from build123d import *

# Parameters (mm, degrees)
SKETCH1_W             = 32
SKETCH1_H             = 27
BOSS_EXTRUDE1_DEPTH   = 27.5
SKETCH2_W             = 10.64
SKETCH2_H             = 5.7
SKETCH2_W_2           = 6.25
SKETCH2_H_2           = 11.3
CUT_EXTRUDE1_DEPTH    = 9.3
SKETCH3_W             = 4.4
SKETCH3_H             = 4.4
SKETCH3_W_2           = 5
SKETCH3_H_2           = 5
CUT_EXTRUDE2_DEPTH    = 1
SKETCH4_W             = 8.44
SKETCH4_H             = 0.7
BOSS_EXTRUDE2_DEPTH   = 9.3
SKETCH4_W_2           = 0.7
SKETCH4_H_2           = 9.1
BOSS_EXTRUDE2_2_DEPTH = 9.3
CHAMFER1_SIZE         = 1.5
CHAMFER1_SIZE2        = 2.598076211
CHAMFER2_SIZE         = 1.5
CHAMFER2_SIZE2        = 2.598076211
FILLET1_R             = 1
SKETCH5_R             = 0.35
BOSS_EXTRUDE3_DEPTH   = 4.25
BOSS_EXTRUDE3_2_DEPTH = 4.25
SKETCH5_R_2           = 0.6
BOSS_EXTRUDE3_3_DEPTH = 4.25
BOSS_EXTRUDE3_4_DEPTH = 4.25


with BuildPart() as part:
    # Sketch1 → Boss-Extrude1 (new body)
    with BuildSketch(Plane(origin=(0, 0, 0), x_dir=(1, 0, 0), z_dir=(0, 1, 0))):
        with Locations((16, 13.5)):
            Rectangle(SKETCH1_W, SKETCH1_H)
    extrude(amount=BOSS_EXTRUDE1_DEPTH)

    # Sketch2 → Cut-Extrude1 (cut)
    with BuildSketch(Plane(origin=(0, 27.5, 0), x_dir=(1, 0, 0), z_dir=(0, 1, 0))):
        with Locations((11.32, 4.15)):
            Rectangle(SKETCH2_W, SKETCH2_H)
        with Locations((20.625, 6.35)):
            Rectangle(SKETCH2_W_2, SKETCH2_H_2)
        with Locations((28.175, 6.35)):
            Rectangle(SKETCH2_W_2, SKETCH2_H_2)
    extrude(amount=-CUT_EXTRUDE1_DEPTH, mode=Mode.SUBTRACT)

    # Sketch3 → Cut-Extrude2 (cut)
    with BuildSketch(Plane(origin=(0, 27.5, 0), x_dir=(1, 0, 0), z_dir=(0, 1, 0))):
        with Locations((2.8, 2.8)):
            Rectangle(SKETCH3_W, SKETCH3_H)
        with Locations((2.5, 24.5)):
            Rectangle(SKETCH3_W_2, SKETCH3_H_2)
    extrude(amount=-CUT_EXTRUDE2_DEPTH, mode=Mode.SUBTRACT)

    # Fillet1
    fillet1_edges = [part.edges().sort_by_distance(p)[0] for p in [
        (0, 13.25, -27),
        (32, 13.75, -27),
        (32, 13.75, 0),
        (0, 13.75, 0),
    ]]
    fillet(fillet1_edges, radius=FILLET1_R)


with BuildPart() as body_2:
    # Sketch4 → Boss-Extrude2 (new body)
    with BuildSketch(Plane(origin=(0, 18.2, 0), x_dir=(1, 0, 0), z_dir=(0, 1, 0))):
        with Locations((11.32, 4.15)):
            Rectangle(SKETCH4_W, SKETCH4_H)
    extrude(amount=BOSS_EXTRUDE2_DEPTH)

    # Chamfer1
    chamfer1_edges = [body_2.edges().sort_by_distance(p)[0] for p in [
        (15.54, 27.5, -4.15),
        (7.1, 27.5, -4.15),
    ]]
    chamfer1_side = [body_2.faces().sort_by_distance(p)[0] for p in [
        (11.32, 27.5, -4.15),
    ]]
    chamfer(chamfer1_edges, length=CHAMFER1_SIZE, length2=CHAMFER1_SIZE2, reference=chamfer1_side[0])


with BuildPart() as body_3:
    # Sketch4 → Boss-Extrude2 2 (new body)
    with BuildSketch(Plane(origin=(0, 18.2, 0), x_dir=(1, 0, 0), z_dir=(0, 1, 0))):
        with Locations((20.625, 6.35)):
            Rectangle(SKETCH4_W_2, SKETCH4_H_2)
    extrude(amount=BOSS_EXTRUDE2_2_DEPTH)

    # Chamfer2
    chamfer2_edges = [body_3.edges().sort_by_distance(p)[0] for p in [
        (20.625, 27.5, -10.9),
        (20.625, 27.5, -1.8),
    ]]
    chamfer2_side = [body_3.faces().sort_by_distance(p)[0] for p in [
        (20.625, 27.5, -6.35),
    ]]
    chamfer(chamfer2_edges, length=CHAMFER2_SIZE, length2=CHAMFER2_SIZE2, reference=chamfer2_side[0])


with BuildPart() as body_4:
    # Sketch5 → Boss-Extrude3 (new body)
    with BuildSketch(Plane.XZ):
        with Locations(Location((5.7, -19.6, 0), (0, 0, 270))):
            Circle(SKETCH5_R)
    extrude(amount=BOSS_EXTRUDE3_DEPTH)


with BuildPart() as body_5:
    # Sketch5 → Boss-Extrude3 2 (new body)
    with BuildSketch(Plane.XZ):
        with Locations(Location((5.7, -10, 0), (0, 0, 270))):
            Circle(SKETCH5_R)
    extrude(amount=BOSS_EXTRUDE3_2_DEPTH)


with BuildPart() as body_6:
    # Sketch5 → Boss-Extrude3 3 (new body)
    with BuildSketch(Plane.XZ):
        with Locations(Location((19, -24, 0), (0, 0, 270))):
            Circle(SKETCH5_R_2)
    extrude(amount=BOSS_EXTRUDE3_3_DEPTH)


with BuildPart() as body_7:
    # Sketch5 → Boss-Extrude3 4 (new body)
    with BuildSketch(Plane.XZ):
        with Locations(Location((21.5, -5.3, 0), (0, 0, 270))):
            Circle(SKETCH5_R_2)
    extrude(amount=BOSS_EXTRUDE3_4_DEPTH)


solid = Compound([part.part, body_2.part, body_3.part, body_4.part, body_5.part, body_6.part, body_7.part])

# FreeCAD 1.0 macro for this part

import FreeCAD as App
import Part
import Sketcher
from FreeCAD import Vector
Q = App.Units.Quantity


def edges_at(feature, points):
    """Names of the edges that pass closest to the given points."""
    edges = feature.Shape.Edges
    near = lambda p: min(range(len(edges)), key=lambda i: edges[i].distToShape(Part.Vertex(*p))[0])
    return sorted({f"Edge{near(p) + 1}" for p in points})

doc = App.newDocument("Part")
params = doc.addObject("Spreadsheet::Sheet", "Params")
for row, (alias, value) in enumerate([
    ("sketch1_width", "32 mm"),
    ("sketch1_height", "27 mm"),
    ("pad1_length", "27.5 mm"),
    ("sketch2_height", "5.7 mm"),
    ("sketch2_height2", "11.3 mm"),
    ("sketch2_width", "10.64 mm"),
    ("sketch2_width2", "6.25 mm"),
    ("pocket1_length", "9.3 mm"),
    ("sketch3_width", "5 mm"),
    ("sketch3_width2", "4.4 mm"),
    ("pocket2_length", "1 mm"),
    ("fillet_radius", "1 mm"),
    ("sketch4_height", "0.7 mm"),
    ("sketch4_width", "8.44 mm"),
    ("pad2_length", "9.3 mm"),
    ("chamfer_size", "1.5 mm"),
    ("chamfer_size2", "2.598076 mm"),
    ("sketch5_width", "0.7 mm"),
    ("sketch5_height", "9.1 mm"),
    ("pad3_length", "9.3 mm"),
    ("chamfer2_size", "1.5 mm"),
    ("chamfer2_size2", "2.598076 mm"),
    ("sketch6_diameter", "0.7 mm"),
    ("pad4_length", "4.25 mm"),
    ("sketch7_diameter", "0.7 mm"),
    ("pad5_length", "4.25 mm"),
    ("sketch8_diameter", "1.2 mm"),
    ("pad6_length", "4.25 mm"),
    ("sketch9_diameter", "1.2 mm"),
    ("pad7_length", "4.25 mm"),
], start=1):
    params.set(f"A{row}", alias)
    params.set(f"B{row}", "=" + value)
    params.setAlias(f"B{row}", alias)

body = doc.addObject("PartDesign::Body", "Body")

sketch1 = body.newObject("Sketcher::SketchObject", "Sketch")
sketch1.AttachmentSupport = (doc.getObject("XZ_Plane"), [""])
sketch1.MapMode = "FlatFace"
sketch1.addGeometry(Part.LineSegment(Vector(0, -27, 0), Vector(0, 0, 0)), False)
sketch1.addGeometry(Part.LineSegment(Vector(0, 0, 0), Vector(32, 0, 0)), False)
sketch1.addGeometry(Part.LineSegment(Vector(32, 0, 0), Vector(32, -27, 0)), False)
sketch1.addGeometry(Part.LineSegment(Vector(32, -27, 0), Vector(0, -27, 0)), False)
sketch1.addConstraint(Sketcher.Constraint("Coincident", 0, 2, 1, 1))
sketch1.addConstraint(Sketcher.Constraint("Coincident", 1, 2, 2, 1))
sketch1.addConstraint(Sketcher.Constraint("Coincident", 2, 2, 3, 1))
sketch1.addConstraint(Sketcher.Constraint("Coincident", 3, 2, 0, 1))
sketch1.addConstraint(Sketcher.Constraint("Vertical", 0))
sketch1.addConstraint(Sketcher.Constraint("Horizontal", 1))
sketch1.addConstraint(Sketcher.Constraint("Vertical", 2))
sketch1.addConstraint(Sketcher.Constraint("Horizontal", 3))
sketch1.addConstraint(Sketcher.Constraint("Coincident", 0, 2, -1, 1))
sketch1.addConstraint(Sketcher.Constraint("DistanceX", 1, 1, 1, 2, Q("32 mm")))
sketch1.addConstraint(Sketcher.Constraint("DistanceY", 0, 1, 0, 2, Q("27 mm")))
sketch1.setExpression("Constraints[9]", "Params.sketch1_width")
sketch1.setExpression("Constraints[10]", "Params.sketch1_height")
pad1 = body.newObject("PartDesign::Pad", "Pad")
pad1.Profile = sketch1
pad1.setExpression("Length", "Params.pad1_length")
pad1.Reversed = True

sketch2 = body.newObject("Sketcher::SketchObject", "Sketch001")
sketch2.AttachmentSupport = (doc.getObject("XZ_Plane"), [""])
sketch2.MapMode = "FlatFace"
sketch2.AttachmentOffset = App.Placement(Vector(0, 0, -27.5), App.Rotation())
sketch2.addGeometry(Part.LineSegment(Vector(6, -7, 0), Vector(6, -1.3, 0)), False)
sketch2.addGeometry(Part.LineSegment(Vector(6, -1.3, 0), Vector(16.64, -1.3, 0)), False)
sketch2.addGeometry(Part.LineSegment(Vector(16.64, -1.3, 0), Vector(16.64, -7, 0)), False)
sketch2.addGeometry(Part.LineSegment(Vector(16.64, -7, 0), Vector(6, -7, 0)), False)
sketch2.addGeometry(Part.LineSegment(Vector(17.5, -12, 0), Vector(17.5, -0.7, 0)), False)
sketch2.addGeometry(Part.LineSegment(Vector(17.5, -0.7, 0), Vector(23.75, -0.7, 0)), False)
sketch2.addGeometry(Part.LineSegment(Vector(23.75, -0.7, 0), Vector(23.75, -12, 0)), False)
sketch2.addGeometry(Part.LineSegment(Vector(23.75, -12, 0), Vector(17.5, -12, 0)), False)
sketch2.addGeometry(Part.LineSegment(Vector(25.05, -12, 0), Vector(25.05, -0.7, 0)), False)
sketch2.addGeometry(Part.LineSegment(Vector(25.05, -0.7, 0), Vector(31.3, -0.7, 0)), False)
sketch2.addGeometry(Part.LineSegment(Vector(31.3, -0.7, 0), Vector(31.3, -12, 0)), False)
sketch2.addGeometry(Part.LineSegment(Vector(31.3, -12, 0), Vector(25.05, -12, 0)), False)
sketch2.addConstraint(Sketcher.Constraint("Coincident", 0, 2, 1, 1))
sketch2.addConstraint(Sketcher.Constraint("Coincident", 1, 2, 2, 1))
sketch2.addConstraint(Sketcher.Constraint("Coincident", 2, 2, 3, 1))
sketch2.addConstraint(Sketcher.Constraint("Coincident", 3, 2, 0, 1))
sketch2.addConstraint(Sketcher.Constraint("Coincident", 4, 2, 5, 1))
sketch2.addConstraint(Sketcher.Constraint("Coincident", 5, 2, 6, 1))
sketch2.addConstraint(Sketcher.Constraint("Coincident", 6, 2, 7, 1))
sketch2.addConstraint(Sketcher.Constraint("Coincident", 7, 2, 4, 1))
sketch2.addConstraint(Sketcher.Constraint("Coincident", 8, 2, 9, 1))
sketch2.addConstraint(Sketcher.Constraint("Coincident", 9, 2, 10, 1))
sketch2.addConstraint(Sketcher.Constraint("Coincident", 10, 2, 11, 1))
sketch2.addConstraint(Sketcher.Constraint("Coincident", 11, 2, 8, 1))
sketch2.addConstraint(Sketcher.Constraint("Vertical", 0))
sketch2.addConstraint(Sketcher.Constraint("Horizontal", 1))
sketch2.addConstraint(Sketcher.Constraint("Vertical", 2))
sketch2.addConstraint(Sketcher.Constraint("Horizontal", 3))
sketch2.addConstraint(Sketcher.Constraint("Vertical", 4))
sketch2.addConstraint(Sketcher.Constraint("Horizontal", 5))
sketch2.addConstraint(Sketcher.Constraint("Vertical", 6))
sketch2.addConstraint(Sketcher.Constraint("Horizontal", 7))
sketch2.addConstraint(Sketcher.Constraint("Vertical", 8))
sketch2.addConstraint(Sketcher.Constraint("Horizontal", 9))
sketch2.addConstraint(Sketcher.Constraint("Vertical", 10))
sketch2.addConstraint(Sketcher.Constraint("Horizontal", 11))
sketch2.addConstraint(Sketcher.Constraint("Horizontal", 5, 2, 8, 2))
sketch2.addConstraint(Sketcher.Constraint("Horizontal", 7, 2, 10, 2))
sketch2.addConstraint(Sketcher.Constraint("Equal", 7, 9))
sketch2.addConstraint(Sketcher.Constraint("DistanceY", 0, 1, 0, 2, Q("5.7 mm")))
sketch2.addConstraint(Sketcher.Constraint("DistanceY", 4, 1, 4, 2, Q("11.3 mm")))
sketch2.addConstraint(Sketcher.Constraint("DistanceX", -1, 1, 0, 2, Q("6 mm")))
sketch2.addConstraint(Sketcher.Constraint("DistanceY", 2, 2, -1, 1, Q("7 mm")))
sketch2.addConstraint(Sketcher.Constraint("DistanceY", 6, 2, -1, 1, Q("12 mm")))
sketch2.addConstraint(Sketcher.Constraint("DistanceX", 1, 1, 1, 2, Q("10.64 mm")))
sketch2.addConstraint(Sketcher.Constraint("DistanceX", 5, 1, 5, 2, Q("6.25 mm")))
sketch2.addConstraint(Sketcher.Constraint("DistanceX", -1, 1, 4, 2, Q("17.5 mm")))
sketch2.addConstraint(Sketcher.Constraint("DistanceX", -1, 1, 9, 2, Q("31.3 mm")))
sketch2.setExpression("Constraints[27]", "Params.sketch2_height")
sketch2.setExpression("Constraints[28]", "Params.sketch2_height2")
sketch2.setExpression("Constraints[32]", "Params.sketch2_width")
sketch2.setExpression("Constraints[33]", "Params.sketch2_width2")
pocket1 = body.newObject("PartDesign::Pocket", "Pocket")
pocket1.Profile = sketch2
pocket1.setExpression("Length", "Params.pocket1_length")
pocket1.Reversed = True

sketch3 = body.newObject("Sketcher::SketchObject", "Sketch002")
sketch3.AttachmentSupport = (doc.getObject("XZ_Plane"), [""])
sketch3.MapMode = "FlatFace"
sketch3.AttachmentOffset = App.Placement(Vector(0, 0, -27.5), App.Rotation())
sketch3.addGeometry(Part.LineSegment(Vector(0.6, -5, 0), Vector(0.6, -0.6, 0)), False)
sketch3.addGeometry(Part.LineSegment(Vector(0.6, -0.6, 0), Vector(5, -0.6, 0)), False)
sketch3.addGeometry(Part.LineSegment(Vector(5, -0.6, 0), Vector(5, -5, 0)), False)
sketch3.addGeometry(Part.LineSegment(Vector(5, -5, 0), Vector(0.6, -5, 0)), False)
sketch3.addGeometry(Part.LineSegment(Vector(0, -27, 0), Vector(0, -22, 0)), False)
sketch3.addGeometry(Part.LineSegment(Vector(0, -22, 0), Vector(5, -22, 0)), False)
sketch3.addGeometry(Part.LineSegment(Vector(5, -22, 0), Vector(5, -27, 0)), False)
sketch3.addGeometry(Part.LineSegment(Vector(5, -27, 0), Vector(0, -27, 0)), False)
sketch3.addConstraint(Sketcher.Constraint("Coincident", 0, 2, 1, 1))
sketch3.addConstraint(Sketcher.Constraint("Coincident", 1, 2, 2, 1))
sketch3.addConstraint(Sketcher.Constraint("Coincident", 2, 2, 3, 1))
sketch3.addConstraint(Sketcher.Constraint("Coincident", 3, 2, 0, 1))
sketch3.addConstraint(Sketcher.Constraint("Coincident", 4, 2, 5, 1))
sketch3.addConstraint(Sketcher.Constraint("Coincident", 5, 2, 6, 1))
sketch3.addConstraint(Sketcher.Constraint("Coincident", 6, 2, 7, 1))
sketch3.addConstraint(Sketcher.Constraint("Coincident", 7, 2, 4, 1))
sketch3.addConstraint(Sketcher.Constraint("Vertical", 0))
sketch3.addConstraint(Sketcher.Constraint("Horizontal", 1))
sketch3.addConstraint(Sketcher.Constraint("Vertical", 2))
sketch3.addConstraint(Sketcher.Constraint("Horizontal", 3))
sketch3.addConstraint(Sketcher.Constraint("Vertical", 4))
sketch3.addConstraint(Sketcher.Constraint("Horizontal", 5))
sketch3.addConstraint(Sketcher.Constraint("Vertical", 6))
sketch3.addConstraint(Sketcher.Constraint("Horizontal", 7))
sketch3.addConstraint(Sketcher.Constraint("PointOnObject", 4, 2, -2))
sketch3.addConstraint(Sketcher.Constraint("Vertical", 2, 2, 5, 2))
sketch3.addConstraint(Sketcher.Constraint("Equal", 3, 0))
sketch3.addConstraint(Sketcher.Constraint("Equal", 7, 4))
sketch3.addConstraint(Sketcher.Constraint("DistanceX", 5, 1, 5, 2, Q("5 mm")))
sketch3.addConstraint(Sketcher.Constraint("DistanceX", 1, 1, 1, 2, Q("4.4 mm")))
sketch3.addConstraint(Sketcher.Constraint("DistanceY", 2, 2, -1, 1, Q("5 mm")))
sketch3.addConstraint(Sketcher.Constraint("DistanceY", 4, 2, -1, 1, Q("22 mm")))
sketch3.setExpression("Constraints[20]", "Params.sketch3_width")
sketch3.setExpression("Constraints[21]", "Params.sketch3_width2")
pocket2 = body.newObject("PartDesign::Pocket", "Pocket001")
pocket2.Profile = sketch3
pocket2.setExpression("Length", "Params.pocket2_length")
pocket2.Reversed = True
doc.recompute()

fillet = body.newObject("PartDesign::Fillet", "Fillet")
fillet.Base = (pocket2, edges_at(pocket2, [
    (0, 13.25, -27),
    (32, 13.75, -27),
    (32, 13.75, 0),
    (0, 13.75, 0),
]))
fillet.setExpression("Radius", "Params.fillet_radius")
body2 = doc.addObject("PartDesign::Body", "Body001")

sketch4 = body2.newObject("Sketcher::SketchObject", "Sketch003")
sketch4.AttachmentSupport = (doc.getObject("XZ_Plane001"), [""])
sketch4.MapMode = "FlatFace"
sketch4.AttachmentOffset = App.Placement(Vector(0, 0, -18.2), App.Rotation())
sketch4.addGeometry(Part.LineSegment(Vector(7.1, -4.5, 0), Vector(7.1, -3.8, 0)), False)
sketch4.addGeometry(Part.LineSegment(Vector(7.1, -3.8, 0), Vector(15.54, -3.8, 0)), False)
sketch4.addGeometry(Part.LineSegment(Vector(15.54, -3.8, 0), Vector(15.54, -4.5, 0)), False)
sketch4.addGeometry(Part.LineSegment(Vector(15.54, -4.5, 0), Vector(7.1, -4.5, 0)), False)
sketch4.addConstraint(Sketcher.Constraint("Coincident", 0, 2, 1, 1))
sketch4.addConstraint(Sketcher.Constraint("Coincident", 1, 2, 2, 1))
sketch4.addConstraint(Sketcher.Constraint("Coincident", 2, 2, 3, 1))
sketch4.addConstraint(Sketcher.Constraint("Coincident", 3, 2, 0, 1))
sketch4.addConstraint(Sketcher.Constraint("Vertical", 0))
sketch4.addConstraint(Sketcher.Constraint("Horizontal", 1))
sketch4.addConstraint(Sketcher.Constraint("Vertical", 2))
sketch4.addConstraint(Sketcher.Constraint("Horizontal", 3))
sketch4.addConstraint(Sketcher.Constraint("DistanceY", 0, 1, 0, 2, Q("0.7 mm")))
sketch4.addConstraint(Sketcher.Constraint("DistanceX", 1, 1, 1, 2, Q("8.44 mm")))
sketch4.addConstraint(Sketcher.Constraint("DistanceX", -1, 1, 0, 2, Q("7.1 mm")))
sketch4.addConstraint(Sketcher.Constraint("DistanceY", 0, 2, -1, 1, Q("3.8 mm")))
sketch4.setExpression("Constraints[8]", "Params.sketch4_height")
sketch4.setExpression("Constraints[9]", "Params.sketch4_width")
pad2 = body2.newObject("PartDesign::Pad", "Pad001")
pad2.Profile = sketch4
pad2.setExpression("Length", "Params.pad2_length")
pad2.Reversed = True
doc.recompute()

chamfer = body2.newObject("PartDesign::Chamfer", "Chamfer")
chamfer.Base = (pad2, edges_at(pad2, [(15.54, 27.5, -4.15), (7.1, 27.5, -4.15)]))
chamfer.ChamferType = "Two distances"
chamfer.setExpression("Size", "Params.chamfer_size")
chamfer.setExpression("Size2", "Params.chamfer_size2")
chamfer.FlipDirection = True
body3 = doc.addObject("PartDesign::Body", "Body002")

sketch5 = body3.newObject("Sketcher::SketchObject", "Sketch004")
sketch5.AttachmentSupport = (doc.getObject("XZ_Plane002"), [""])
sketch5.MapMode = "FlatFace"
sketch5.AttachmentOffset = App.Placement(Vector(0, 0, -18.2), App.Rotation())
sketch5.addGeometry(Part.LineSegment(Vector(20.275, -10.9, 0), Vector(20.275, -1.8, 0)), False)
sketch5.addGeometry(Part.LineSegment(Vector(20.275, -1.8, 0), Vector(20.975, -1.8, 0)), False)
sketch5.addGeometry(Part.LineSegment(Vector(20.975, -1.8, 0), Vector(20.975, -10.9, 0)), False)
sketch5.addGeometry(Part.LineSegment(Vector(20.975, -10.9, 0), Vector(20.275, -10.9, 0)), False)
sketch5.addConstraint(Sketcher.Constraint("Coincident", 0, 2, 1, 1))
sketch5.addConstraint(Sketcher.Constraint("Coincident", 1, 2, 2, 1))
sketch5.addConstraint(Sketcher.Constraint("Coincident", 2, 2, 3, 1))
sketch5.addConstraint(Sketcher.Constraint("Coincident", 3, 2, 0, 1))
sketch5.addConstraint(Sketcher.Constraint("Vertical", 0))
sketch5.addConstraint(Sketcher.Constraint("Horizontal", 1))
sketch5.addConstraint(Sketcher.Constraint("Vertical", 2))
sketch5.addConstraint(Sketcher.Constraint("Horizontal", 3))
sketch5.addConstraint(Sketcher.Constraint("DistanceX", 1, 1, 1, 2, Q("0.7 mm")))
sketch5.addConstraint(Sketcher.Constraint("DistanceY", 0, 1, 0, 2, Q("9.1 mm")))
sketch5.addConstraint(Sketcher.Constraint("DistanceY", 0, 2, -1, 1, Q("1.8 mm")))
sketch5.addConstraint(Sketcher.Constraint("DistanceX", -1, 1, 0, 2, Q("20.275 mm")))
sketch5.setExpression("Constraints[8]", "Params.sketch5_width")
sketch5.setExpression("Constraints[9]", "Params.sketch5_height")
pad3 = body3.newObject("PartDesign::Pad", "Pad002")
pad3.Profile = sketch5
pad3.setExpression("Length", "Params.pad3_length")
pad3.Reversed = True
doc.recompute()

chamfer2 = body3.newObject("PartDesign::Chamfer", "Chamfer001")
chamfer2.Base = (pad3, edges_at(pad3, [(20.625, 27.5, -10.9), (20.625, 27.5, -1.8)]))
chamfer2.ChamferType = "Two distances"
chamfer2.setExpression("Size", "Params.chamfer2_size")
chamfer2.setExpression("Size2", "Params.chamfer2_size2")
chamfer2.FlipDirection = True
body4 = doc.addObject("PartDesign::Body", "Body003")

sketch6 = body4.newObject("Sketcher::SketchObject", "Sketch005")
sketch6.AttachmentSupport = (doc.getObject("XZ_Plane003"), [""])
sketch6.MapMode = "FlatFace"
sketch6.addGeometry(Part.Circle(Vector(5.7, -19.6, 0), Vector(0, 0, 1), 0.35), False)
sketch6.addConstraint(Sketcher.Constraint("Diameter", 0, Q("0.7 mm")))
sketch6.addConstraint(Sketcher.Constraint("DistanceX", -1, 1, 0, 3, Q("5.7 mm")))
sketch6.addConstraint(Sketcher.Constraint("DistanceY", 0, 3, -1, 1, Q("19.6 mm")))
sketch6.setExpression("Constraints[0]", "Params.sketch6_diameter")
pad4 = body4.newObject("PartDesign::Pad", "Pad003")
pad4.Profile = sketch6
pad4.setExpression("Length", "Params.pad4_length")
body5 = doc.addObject("PartDesign::Body", "Body004")

sketch7 = body5.newObject("Sketcher::SketchObject", "Sketch006")
sketch7.AttachmentSupport = (doc.getObject("XZ_Plane004"), [""])
sketch7.MapMode = "FlatFace"
sketch7.addGeometry(Part.Circle(Vector(5.7, -10, 0), Vector(0, 0, 1), 0.35), False)
sketch7.addConstraint(Sketcher.Constraint("Diameter", 0, Q("0.7 mm")))
sketch7.addConstraint(Sketcher.Constraint("DistanceY", 0, 3, -1, 1, Q("10 mm")))
sketch7.addConstraint(Sketcher.Constraint("DistanceX", -1, 1, 0, 3, Q("5.7 mm")))
sketch7.setExpression("Constraints[0]", "Params.sketch7_diameter")
pad5 = body5.newObject("PartDesign::Pad", "Pad004")
pad5.Profile = sketch7
pad5.setExpression("Length", "Params.pad5_length")
body6 = doc.addObject("PartDesign::Body", "Body005")

sketch8 = body6.newObject("Sketcher::SketchObject", "Sketch007")
sketch8.AttachmentSupport = (doc.getObject("XZ_Plane005"), [""])
sketch8.MapMode = "FlatFace"
sketch8.addGeometry(Part.Circle(Vector(19, -24, 0), Vector(0, 0, 1), 0.6), False)
sketch8.addConstraint(Sketcher.Constraint("Diameter", 0, Q("1.2 mm")))
sketch8.addConstraint(Sketcher.Constraint("DistanceX", -1, 1, 0, 3, Q("19 mm")))
sketch8.addConstraint(Sketcher.Constraint("DistanceY", 0, 3, -1, 1, Q("24 mm")))
sketch8.setExpression("Constraints[0]", "Params.sketch8_diameter")
pad6 = body6.newObject("PartDesign::Pad", "Pad005")
pad6.Profile = sketch8
pad6.setExpression("Length", "Params.pad6_length")
body7 = doc.addObject("PartDesign::Body", "Body006")

sketch9 = body7.newObject("Sketcher::SketchObject", "Sketch008")
sketch9.AttachmentSupport = (doc.getObject("XZ_Plane006"), [""])
sketch9.MapMode = "FlatFace"
sketch9.addGeometry(Part.Circle(Vector(21.5, -5.3, 0), Vector(0, 0, 1), 0.6), False)
sketch9.addConstraint(Sketcher.Constraint("Diameter", 0, Q("1.2 mm")))
sketch9.addConstraint(Sketcher.Constraint("DistanceX", -1, 1, 0, 3, Q("21.5 mm")))
sketch9.addConstraint(Sketcher.Constraint("DistanceY", 0, 3, -1, 1, Q("5.3 mm")))
sketch9.setExpression("Constraints[0]", "Params.sketch9_diameter")
pad7 = body7.newObject("PartDesign::Pad", "Pad006")
pad7.Profile = sketch9
pad7.setExpression("Length", "Params.pad7_length")

doc.recompute()
